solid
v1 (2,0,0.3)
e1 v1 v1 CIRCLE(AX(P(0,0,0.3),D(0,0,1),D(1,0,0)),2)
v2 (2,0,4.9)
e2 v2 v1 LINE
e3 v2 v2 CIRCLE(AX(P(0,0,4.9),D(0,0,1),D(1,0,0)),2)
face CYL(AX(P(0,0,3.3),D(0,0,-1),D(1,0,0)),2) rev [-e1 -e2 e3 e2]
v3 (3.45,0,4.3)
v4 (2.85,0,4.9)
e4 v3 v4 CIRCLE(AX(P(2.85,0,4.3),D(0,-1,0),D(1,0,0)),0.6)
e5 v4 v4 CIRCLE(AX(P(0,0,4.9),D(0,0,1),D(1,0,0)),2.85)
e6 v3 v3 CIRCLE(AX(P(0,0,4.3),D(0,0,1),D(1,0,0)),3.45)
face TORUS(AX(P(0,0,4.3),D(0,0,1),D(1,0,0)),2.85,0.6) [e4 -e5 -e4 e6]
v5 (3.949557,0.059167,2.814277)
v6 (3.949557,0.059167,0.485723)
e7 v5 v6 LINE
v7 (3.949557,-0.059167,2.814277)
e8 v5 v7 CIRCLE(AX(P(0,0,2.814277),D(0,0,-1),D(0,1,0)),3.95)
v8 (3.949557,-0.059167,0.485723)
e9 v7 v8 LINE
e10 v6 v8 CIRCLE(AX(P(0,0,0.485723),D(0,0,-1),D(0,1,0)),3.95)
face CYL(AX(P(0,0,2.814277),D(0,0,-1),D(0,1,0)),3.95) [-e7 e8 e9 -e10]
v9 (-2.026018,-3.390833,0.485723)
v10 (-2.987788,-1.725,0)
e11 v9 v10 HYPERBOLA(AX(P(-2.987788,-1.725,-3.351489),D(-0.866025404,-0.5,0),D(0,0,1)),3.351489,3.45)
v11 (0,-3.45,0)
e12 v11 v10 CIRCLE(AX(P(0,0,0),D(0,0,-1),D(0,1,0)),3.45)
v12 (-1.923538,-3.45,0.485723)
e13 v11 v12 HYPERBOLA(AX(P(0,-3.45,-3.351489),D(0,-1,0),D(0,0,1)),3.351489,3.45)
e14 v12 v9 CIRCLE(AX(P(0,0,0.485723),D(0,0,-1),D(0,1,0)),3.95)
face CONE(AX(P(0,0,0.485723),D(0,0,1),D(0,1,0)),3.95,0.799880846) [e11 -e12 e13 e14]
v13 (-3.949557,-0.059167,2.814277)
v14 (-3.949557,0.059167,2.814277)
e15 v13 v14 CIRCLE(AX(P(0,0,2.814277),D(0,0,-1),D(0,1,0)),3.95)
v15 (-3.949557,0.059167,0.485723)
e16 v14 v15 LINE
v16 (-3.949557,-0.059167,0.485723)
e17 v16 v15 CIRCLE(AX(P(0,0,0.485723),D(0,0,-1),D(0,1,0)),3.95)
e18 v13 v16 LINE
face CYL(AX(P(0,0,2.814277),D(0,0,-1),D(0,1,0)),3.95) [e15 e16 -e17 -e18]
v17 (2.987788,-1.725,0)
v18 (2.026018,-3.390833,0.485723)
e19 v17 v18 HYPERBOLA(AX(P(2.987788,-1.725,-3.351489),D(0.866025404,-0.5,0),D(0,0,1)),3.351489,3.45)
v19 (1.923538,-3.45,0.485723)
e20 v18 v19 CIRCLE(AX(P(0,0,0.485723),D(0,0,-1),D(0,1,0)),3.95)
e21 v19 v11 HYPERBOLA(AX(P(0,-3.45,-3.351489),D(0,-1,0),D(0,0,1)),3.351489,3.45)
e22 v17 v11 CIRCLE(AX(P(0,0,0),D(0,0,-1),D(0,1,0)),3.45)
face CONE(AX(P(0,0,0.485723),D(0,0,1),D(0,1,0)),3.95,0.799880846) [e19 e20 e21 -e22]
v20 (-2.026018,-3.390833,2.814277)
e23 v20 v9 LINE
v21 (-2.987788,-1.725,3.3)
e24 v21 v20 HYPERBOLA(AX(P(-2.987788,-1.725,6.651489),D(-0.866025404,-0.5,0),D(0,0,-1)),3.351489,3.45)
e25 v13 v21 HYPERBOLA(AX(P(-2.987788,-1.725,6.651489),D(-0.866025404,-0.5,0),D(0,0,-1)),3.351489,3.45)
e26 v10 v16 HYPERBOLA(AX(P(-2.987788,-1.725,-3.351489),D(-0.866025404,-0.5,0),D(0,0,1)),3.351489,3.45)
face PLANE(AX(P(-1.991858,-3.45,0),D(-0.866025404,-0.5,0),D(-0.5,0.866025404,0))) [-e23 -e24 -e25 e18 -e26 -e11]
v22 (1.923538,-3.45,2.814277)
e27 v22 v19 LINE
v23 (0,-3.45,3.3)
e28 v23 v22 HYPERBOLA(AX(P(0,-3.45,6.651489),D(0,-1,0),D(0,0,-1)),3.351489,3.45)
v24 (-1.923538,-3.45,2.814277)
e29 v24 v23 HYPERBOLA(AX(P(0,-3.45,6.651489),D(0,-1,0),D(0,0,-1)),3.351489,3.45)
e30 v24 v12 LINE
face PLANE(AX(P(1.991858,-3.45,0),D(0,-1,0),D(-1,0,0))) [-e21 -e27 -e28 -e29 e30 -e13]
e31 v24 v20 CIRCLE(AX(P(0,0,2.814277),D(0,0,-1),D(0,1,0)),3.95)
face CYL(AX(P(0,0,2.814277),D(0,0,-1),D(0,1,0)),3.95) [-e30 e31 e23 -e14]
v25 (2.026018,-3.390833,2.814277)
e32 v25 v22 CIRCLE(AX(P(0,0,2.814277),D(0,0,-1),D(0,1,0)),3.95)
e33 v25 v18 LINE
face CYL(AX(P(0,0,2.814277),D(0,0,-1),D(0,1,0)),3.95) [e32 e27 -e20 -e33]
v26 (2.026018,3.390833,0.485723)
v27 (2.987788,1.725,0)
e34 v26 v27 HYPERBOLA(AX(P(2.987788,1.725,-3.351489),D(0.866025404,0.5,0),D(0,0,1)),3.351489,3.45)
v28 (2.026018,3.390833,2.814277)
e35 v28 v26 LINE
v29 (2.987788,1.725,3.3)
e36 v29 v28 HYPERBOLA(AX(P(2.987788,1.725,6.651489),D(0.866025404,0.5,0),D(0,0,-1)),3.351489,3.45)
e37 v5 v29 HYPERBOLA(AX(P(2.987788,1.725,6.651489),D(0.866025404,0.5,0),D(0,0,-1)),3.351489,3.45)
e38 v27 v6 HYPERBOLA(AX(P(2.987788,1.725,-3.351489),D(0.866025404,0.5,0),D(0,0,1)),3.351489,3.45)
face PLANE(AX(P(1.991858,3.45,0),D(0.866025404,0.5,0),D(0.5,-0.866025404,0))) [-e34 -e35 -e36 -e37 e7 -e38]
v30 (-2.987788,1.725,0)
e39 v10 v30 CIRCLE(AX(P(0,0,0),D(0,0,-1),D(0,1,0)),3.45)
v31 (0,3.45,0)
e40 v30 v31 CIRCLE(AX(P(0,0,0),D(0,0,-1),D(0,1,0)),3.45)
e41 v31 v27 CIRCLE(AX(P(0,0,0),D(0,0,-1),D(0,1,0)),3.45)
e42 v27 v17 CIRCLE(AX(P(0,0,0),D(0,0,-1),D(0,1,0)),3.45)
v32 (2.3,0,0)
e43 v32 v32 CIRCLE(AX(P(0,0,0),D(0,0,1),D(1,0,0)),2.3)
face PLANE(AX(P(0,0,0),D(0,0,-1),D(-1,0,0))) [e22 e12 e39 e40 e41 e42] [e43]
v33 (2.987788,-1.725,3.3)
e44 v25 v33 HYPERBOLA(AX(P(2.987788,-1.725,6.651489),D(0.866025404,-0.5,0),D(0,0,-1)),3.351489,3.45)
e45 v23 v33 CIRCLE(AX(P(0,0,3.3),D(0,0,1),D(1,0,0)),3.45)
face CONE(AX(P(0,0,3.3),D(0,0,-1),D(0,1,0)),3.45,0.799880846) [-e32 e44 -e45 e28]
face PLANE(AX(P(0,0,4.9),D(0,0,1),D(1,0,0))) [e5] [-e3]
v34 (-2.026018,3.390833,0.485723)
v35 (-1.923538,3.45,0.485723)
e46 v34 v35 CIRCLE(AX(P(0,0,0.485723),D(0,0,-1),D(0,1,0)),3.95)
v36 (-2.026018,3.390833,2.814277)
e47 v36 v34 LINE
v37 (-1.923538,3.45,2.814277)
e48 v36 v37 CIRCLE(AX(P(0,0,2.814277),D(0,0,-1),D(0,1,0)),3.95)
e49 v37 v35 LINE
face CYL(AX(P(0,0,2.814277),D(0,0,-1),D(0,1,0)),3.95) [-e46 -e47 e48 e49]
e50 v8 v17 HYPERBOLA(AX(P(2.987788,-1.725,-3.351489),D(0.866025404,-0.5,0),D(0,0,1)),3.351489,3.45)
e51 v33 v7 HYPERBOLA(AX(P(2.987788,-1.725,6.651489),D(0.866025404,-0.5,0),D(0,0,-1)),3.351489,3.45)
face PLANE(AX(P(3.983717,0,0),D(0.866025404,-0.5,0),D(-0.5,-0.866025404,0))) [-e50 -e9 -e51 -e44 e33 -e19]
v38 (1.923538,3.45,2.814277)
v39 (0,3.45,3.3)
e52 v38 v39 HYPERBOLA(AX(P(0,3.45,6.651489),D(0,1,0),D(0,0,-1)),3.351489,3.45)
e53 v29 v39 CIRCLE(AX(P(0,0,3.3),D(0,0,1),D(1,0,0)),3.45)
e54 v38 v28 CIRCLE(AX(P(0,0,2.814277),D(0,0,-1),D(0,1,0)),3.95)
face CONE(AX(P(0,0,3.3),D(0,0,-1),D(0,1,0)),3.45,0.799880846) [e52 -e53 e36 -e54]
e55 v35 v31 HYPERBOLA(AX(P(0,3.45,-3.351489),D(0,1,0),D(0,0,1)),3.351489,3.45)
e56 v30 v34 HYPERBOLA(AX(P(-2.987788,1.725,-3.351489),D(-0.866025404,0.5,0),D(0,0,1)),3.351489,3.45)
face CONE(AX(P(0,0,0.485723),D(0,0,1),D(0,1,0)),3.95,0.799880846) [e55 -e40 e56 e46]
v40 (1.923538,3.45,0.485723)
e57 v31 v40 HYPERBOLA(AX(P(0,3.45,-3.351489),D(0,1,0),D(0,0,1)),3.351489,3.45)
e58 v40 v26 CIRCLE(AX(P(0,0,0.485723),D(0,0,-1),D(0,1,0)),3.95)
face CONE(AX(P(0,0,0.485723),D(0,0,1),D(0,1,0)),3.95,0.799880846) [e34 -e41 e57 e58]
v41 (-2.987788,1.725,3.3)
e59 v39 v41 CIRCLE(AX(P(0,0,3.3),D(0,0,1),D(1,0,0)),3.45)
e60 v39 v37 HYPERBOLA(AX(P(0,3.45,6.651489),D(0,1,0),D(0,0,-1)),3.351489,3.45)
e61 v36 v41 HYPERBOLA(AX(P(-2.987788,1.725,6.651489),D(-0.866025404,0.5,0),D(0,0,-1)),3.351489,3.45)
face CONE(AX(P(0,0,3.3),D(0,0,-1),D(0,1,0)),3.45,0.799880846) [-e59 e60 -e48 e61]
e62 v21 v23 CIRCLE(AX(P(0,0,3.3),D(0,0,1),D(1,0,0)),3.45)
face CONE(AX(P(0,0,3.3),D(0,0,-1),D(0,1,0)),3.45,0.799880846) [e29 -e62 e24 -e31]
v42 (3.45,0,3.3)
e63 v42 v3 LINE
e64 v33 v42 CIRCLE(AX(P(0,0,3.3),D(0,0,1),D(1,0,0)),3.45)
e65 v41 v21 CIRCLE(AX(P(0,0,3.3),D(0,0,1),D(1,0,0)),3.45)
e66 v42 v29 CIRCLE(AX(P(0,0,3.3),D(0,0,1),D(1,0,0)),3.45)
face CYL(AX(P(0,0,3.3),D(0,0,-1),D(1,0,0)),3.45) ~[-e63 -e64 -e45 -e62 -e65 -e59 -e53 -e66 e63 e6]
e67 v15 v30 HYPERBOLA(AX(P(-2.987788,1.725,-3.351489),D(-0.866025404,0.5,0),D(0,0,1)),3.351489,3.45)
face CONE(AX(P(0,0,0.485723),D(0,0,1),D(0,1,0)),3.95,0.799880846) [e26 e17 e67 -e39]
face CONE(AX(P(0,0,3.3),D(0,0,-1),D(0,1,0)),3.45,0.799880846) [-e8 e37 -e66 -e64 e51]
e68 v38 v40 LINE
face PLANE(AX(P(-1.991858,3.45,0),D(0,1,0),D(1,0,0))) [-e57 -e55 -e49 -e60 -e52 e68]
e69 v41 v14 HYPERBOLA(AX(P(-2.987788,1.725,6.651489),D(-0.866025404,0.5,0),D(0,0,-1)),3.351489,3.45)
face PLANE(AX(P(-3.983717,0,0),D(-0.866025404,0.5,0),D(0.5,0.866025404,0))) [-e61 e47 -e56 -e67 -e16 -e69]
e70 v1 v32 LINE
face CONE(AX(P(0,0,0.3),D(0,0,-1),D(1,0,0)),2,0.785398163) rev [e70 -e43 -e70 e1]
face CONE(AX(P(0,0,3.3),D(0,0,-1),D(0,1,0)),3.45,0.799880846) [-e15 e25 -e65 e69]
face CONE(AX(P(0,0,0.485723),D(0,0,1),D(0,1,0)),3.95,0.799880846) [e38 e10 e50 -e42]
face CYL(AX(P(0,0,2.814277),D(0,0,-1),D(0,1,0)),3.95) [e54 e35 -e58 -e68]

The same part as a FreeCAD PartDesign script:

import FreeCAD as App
import Part
import Sketcher

V = App.Vector
Q = App.Units.Quantity


def edges_at(feature, points):
    """Names of the edges that pass closest to the given points."""
    edges = feature.Shape.Edges
    near = lambda p: min(range(len(edges)), key=lambda i: edges[i].distToShape(Part.Vertex(*p))[0])
    return sorted({f"Edge{near(p) + 1}" for p in points})


def add_polygon(sketch, points):
    """Adds a closed chain of lines whose ends are joined by coincident constraints."""
    first, n = sketch.GeometryCount, len(points)
    for a, b in zip(points, points[1:] + points[:1]):
        sketch.addGeometry(Part.LineSegment(App.Vector(*a, 0), App.Vector(*b, 0)), False)
    for i in range(n):
        sketch.addConstraint(Sketcher.Constraint("Coincident", first + i, 2, first + (i + 1) % n, 1))

doc = App.newDocument("Part")
params = doc.addObject("Spreadsheet::Sheet", "Params")
for row, (alias, value) in enumerate([
    ("sketch1_diameter", "4 mm"),
    ("pad1_length", "3.3 mm"),
    ("sketch2_diameter", "4 mm"),
    ("sketch2_diameter2", "6.9 mm"),
    ("pad2_length", "1.6 mm"),
    ("fillet_radius", "0.6 mm"),
    ("sketch3_height", "3.3 mm"),
    ("groove_angle", "360 deg"),
    ("chamfer_size", "0.3 mm"),
], start=1):
    params.set(f"A{row}", alias)
    params.set(f"B{row}", "=" + value)
    params.setAlias(f"B{row}", alias)

body = doc.addObject("PartDesign::Body", "Body")

sketch1 = body.newObject("Sketcher::SketchObject", "Sketch")
sketch1.AttachmentSupport = (doc.getObject("XY_Plane"), [""])
sketch1.MapMode = "FlatFace"
add_polygon(sketch1, [(1.991858, 3.45), (-1.991858, 3.45), (-3.983717, 0), (-1.991858, -3.45), (1.991858, -3.45), (3.983717, 0)])
sketch1.addGeometry(Part.Circle(V(0, 0, 0), V(0, 0, 1), 2), False)
sketch1.addConstraint([
    Sketcher.Constraint("Horizontal", 0),
    Sketcher.Constraint("Horizontal", 3),
    Sketcher.Constraint("Coincident", 6, 3, -1, 1),
    Sketcher.Constraint("Symmetric", 0, 2, 3, 2, -1, 1),
    Sketcher.Constraint("Symmetric", 1, 2, 4, 2, -1, 1),
    Sketcher.Constraint("PointOnObject", 1, 2, -1),
    Sketcher.Constraint("Parallel", 2, 5),
    Sketcher.Constraint("Vertical", 0, 2, 2, 2),
    Sketcher.Constraint("Diameter", 6, Q("4 mm")),
    Sketcher.Constraint("Angle", 1, Q("-120 deg")),
    Sketcher.Constraint("DistanceY", 2, 2, 0, 2, Q("6.9 mm")),
    Sketcher.Constraint("DistanceX", 0, 2, 0, 1, Q("3.983717 mm")),
])
sketch1.setExpression("Constraints[14]", "Params.sketch1_diameter")
pad1 = body.newObject("PartDesign::Pad", "Pad")
pad1.Profile = sketch1
pad1.setExpression("Length", "Params.pad1_length")

sketch2 = body.newObject("Sketcher::SketchObject", "Sketch001")
sketch2.AttachmentSupport = (doc.getObject("XY_Plane"), [""])
sketch2.MapMode = "FlatFace"
sketch2.AttachmentOffset = App.Placement(V(0, 0, 3.3), App.Rotation())
sketch2.addGeometry([
    Part.Circle(V(0, 0, 0), V(0, 0, 1), 3.45),
    Part.Circle(V(0, 0, 0), V(0, 0, 1), 2),
], False)
sketch2.addConstraint([
    Sketcher.Constraint("Coincident", 0, 3, -1, 1),
    Sketcher.Constraint("Coincident", 1, 3, -1, 1),
    Sketcher.Constraint("Diameter", 1, Q("4 mm")),
    Sketcher.Constraint("Diameter", 0, Q("6.9 mm")),
])
sketch2.setExpression("Constraints[2]", "Params.sketch2_diameter")
sketch2.setExpression("Constraints[3]", "Params.sketch2_diameter2")
pad2 = body.newObject("PartDesign::Pad", "Pad001")
pad2.Profile = sketch2
pad2.setExpression("Length", "Params.pad2_length")
doc.recompute()

fillet = body.newObject("PartDesign::Fillet", "Fillet")
fillet.Base = (pad2, edges_at(pad2, [(-3.45, 0, 4.9)]))
fillet.setExpression("Radius", "Params.fillet_radius")

sketch3 = body.newObject("Sketcher::SketchObject", "Sketch002")
sketch3.AttachmentSupport = (doc.getObject("YZ_Plane"), [""])
sketch3.MapMode = "FlatFace"
add_polygon(sketch3, [(3.45, 3.3), (3.95, 2.814277), (3.95, 0.485723), (3.45, 0), (4.719262, 0), (4.719262, 3.3)])
sketch3.addConstraint([
    Sketcher.Constraint("Vertical", 1),
    Sketcher.Constraint("Horizontal", 3),
    Sketcher.Constraint("Vertical", 4),
    Sketcher.Constraint("Horizontal", 5),
    Sketcher.Constraint("PointOnObject", 2, 2, -1),
    Sketcher.Constraint("Vertical", 2, 2, 5, 2),
    Sketcher.Constraint("Equal", 0, 2),
    Sketcher.Constraint("DistanceY", 4, 1, 4, 2, Q("3.3 mm")),
    Sketcher.Constraint("DistanceX", 2, 2, 1, 2, Q("0.5 mm")),
    Sketcher.Constraint("DistanceX", -1, 1, 0, 2, Q("3.95 mm")),
    Sketcher.Constraint("DistanceX", 3, 1, 3, 2, Q("1.269262 mm")),
    Sketcher.Constraint("DistanceY", 1, 2, 1, 1, Q("2.328554 mm")),
])
sketch3.setExpression("Constraints[13]", "Params.sketch3_height")
groove = body.newObject("PartDesign::Groove", "Groove")
groove.Profile = sketch3
groove.ReferenceAxis = (sketch3, ["V_Axis"])
groove.setExpression("Angle", "Params.groove_angle")
doc.recompute()

chamfer = body.newObject("PartDesign::Chamfer", "Chamfer")
chamfer.Base = (groove, edges_at(groove, [(-2, 0, 0)]))
chamfer.setExpression("Size", "Params.chamfer_size")

doc.recompute()
